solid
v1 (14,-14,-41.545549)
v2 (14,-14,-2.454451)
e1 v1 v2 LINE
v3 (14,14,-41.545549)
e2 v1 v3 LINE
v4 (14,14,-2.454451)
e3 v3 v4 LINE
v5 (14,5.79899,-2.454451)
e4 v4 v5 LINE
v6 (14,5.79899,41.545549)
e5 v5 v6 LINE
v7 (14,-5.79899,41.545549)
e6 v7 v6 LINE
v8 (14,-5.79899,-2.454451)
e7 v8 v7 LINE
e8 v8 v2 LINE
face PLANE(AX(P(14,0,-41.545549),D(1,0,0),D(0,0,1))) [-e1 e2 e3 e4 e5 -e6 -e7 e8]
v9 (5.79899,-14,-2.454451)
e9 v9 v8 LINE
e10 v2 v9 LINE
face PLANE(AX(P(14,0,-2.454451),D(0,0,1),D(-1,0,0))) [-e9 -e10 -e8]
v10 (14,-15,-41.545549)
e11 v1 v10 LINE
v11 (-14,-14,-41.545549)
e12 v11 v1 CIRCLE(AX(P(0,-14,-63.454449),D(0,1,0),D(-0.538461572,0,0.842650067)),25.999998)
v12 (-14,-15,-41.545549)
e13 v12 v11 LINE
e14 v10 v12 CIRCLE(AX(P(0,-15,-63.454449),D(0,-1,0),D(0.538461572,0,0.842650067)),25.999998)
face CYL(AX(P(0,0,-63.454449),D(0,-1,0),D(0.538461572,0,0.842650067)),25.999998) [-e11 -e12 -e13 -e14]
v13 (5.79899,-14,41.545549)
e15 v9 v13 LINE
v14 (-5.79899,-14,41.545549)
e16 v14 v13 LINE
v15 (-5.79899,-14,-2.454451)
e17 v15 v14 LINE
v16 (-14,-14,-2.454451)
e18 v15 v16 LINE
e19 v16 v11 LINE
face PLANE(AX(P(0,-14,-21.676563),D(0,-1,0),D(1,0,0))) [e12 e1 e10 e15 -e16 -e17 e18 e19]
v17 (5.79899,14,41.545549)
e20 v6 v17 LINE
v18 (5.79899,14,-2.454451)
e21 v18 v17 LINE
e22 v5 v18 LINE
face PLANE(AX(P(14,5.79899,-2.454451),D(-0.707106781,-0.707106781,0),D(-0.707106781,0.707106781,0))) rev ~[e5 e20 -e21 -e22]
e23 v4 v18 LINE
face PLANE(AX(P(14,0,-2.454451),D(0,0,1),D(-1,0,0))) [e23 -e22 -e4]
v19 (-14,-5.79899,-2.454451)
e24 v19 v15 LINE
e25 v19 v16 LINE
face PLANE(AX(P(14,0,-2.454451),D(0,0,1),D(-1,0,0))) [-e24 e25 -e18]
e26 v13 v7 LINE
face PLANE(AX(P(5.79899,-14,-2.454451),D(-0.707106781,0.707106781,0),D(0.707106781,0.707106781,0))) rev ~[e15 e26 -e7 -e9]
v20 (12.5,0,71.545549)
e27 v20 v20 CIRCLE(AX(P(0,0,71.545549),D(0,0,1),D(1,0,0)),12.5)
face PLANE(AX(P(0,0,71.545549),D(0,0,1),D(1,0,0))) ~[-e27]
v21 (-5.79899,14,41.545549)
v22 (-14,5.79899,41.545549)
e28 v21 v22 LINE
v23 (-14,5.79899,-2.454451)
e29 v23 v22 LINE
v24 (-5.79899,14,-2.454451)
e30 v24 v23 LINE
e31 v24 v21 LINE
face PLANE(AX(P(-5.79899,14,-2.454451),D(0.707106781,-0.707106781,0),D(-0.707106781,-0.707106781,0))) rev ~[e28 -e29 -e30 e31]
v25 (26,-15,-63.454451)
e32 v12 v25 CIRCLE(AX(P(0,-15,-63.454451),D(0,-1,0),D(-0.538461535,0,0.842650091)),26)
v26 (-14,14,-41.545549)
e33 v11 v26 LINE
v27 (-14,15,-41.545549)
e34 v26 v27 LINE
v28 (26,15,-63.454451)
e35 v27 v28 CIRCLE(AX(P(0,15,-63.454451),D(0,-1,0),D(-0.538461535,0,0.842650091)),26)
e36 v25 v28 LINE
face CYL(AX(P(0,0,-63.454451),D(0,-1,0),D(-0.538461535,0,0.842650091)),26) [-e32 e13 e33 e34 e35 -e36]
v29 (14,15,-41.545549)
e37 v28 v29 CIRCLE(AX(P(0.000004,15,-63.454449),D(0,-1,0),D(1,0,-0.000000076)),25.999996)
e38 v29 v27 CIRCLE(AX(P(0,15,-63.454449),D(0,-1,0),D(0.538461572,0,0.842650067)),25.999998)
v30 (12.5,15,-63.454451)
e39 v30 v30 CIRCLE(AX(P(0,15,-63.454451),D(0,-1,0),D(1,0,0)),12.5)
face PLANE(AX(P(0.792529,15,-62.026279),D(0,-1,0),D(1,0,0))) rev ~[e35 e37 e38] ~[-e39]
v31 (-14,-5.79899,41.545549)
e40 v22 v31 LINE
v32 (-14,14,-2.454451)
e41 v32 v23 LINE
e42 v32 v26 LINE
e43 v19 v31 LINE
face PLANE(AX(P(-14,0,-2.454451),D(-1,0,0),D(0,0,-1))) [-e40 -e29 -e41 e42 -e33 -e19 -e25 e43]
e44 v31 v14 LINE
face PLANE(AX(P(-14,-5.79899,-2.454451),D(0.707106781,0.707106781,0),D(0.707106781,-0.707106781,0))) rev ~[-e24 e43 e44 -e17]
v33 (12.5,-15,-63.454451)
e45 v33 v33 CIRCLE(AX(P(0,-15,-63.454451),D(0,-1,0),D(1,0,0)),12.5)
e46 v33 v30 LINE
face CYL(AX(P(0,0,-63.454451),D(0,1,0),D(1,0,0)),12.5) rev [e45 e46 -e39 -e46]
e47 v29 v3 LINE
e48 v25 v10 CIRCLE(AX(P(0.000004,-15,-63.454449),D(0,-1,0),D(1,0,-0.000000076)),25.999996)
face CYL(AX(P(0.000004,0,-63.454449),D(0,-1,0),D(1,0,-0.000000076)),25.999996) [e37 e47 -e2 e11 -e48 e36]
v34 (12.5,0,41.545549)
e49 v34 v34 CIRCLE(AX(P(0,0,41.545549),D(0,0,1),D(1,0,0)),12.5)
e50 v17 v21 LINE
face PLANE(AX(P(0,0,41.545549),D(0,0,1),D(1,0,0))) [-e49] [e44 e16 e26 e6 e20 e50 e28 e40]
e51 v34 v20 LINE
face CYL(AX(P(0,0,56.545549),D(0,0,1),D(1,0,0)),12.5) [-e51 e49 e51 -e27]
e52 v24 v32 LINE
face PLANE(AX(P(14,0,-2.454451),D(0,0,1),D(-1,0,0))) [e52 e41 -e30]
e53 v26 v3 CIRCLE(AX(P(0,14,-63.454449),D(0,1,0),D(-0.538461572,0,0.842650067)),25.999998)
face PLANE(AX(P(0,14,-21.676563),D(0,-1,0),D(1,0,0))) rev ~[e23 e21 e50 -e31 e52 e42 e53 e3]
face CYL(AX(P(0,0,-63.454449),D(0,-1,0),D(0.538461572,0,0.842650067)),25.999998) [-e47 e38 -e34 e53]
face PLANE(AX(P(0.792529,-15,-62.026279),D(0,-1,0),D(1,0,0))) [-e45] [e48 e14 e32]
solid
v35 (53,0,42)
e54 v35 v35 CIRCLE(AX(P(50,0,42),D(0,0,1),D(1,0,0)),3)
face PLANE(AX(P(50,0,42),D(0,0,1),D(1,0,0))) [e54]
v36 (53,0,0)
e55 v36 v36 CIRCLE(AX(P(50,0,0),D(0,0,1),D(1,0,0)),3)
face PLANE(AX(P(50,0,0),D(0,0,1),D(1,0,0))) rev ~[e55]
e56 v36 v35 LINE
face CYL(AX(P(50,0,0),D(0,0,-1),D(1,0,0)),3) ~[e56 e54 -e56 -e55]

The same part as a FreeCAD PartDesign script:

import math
import FreeCAD as App
import Part
import Sketcher

V = App.Vector
Q = App.Units.Quantity


def add_polygon(sketch, points):
    """Adds a closed chain of lines whose ends are joined by coincident constraints."""
    first, n = sketch.GeometryCount, len(points)
    for a, b in zip(points, points[1:] + points[:1]):
        sketch.addGeometry(Part.LineSegment(App.Vector(*a, 0), App.Vector(*b, 0)), False)
    for i in range(n):
        sketch.addConstraint(Sketcher.Constraint("Coincident", first + i, 2, first + (i + 1) % n, 1))

doc = App.newDocument("Part")
params = doc.addObject("Spreadsheet::Sheet", "Params")
for row, (alias, value) in enumerate([
    ("sketch1_diameter", "25 mm"),
    ("sketch1_radius", "25.999998 mm"),
    ("pad1_length", "30 mm"),
    ("sketch2_radius", "25.999998 mm"),
    ("sketch2_width", "28 mm"),
    ("pad2_length", "28 mm"),
    ("pad3_length", "44 mm"),
    ("sketch4_height", "30 mm"),
    ("sketch4_width", "12.5 mm"),
    ("revolution_angle", "360 deg"),
    ("sketch5_diameter", "6 mm"),
    ("pad4_length", "42 mm"),
], start=1):
    params.set(f"A{row}", alias)
    params.set(f"B{row}", "=" + value)
    params.setAlias(f"B{row}", alias)

body = doc.addObject("PartDesign::Body", "Body")

# Sketch on XZ plane
sketch1 = doc.addObject("Sketcher::SketchObject", "Sketch")
body.addObject(sketch1)
sketch1.AttachmentSupport = (doc.XZ_Plane, [""])
sketch1.MapMode = "FlatFace"
sketch1.addGeometry([
    Part.ArcOfCircle(Part.Circle(V(0.000004, -63.454449, 0), V(0, 0, 1), 25.999996), math.radians(-0.000004), math.radians(57.421035)),
    Part.ArcOfCircle(Part.Circle(V(0, -63.454449, 0), V(0, 0, 1), 25.999998), math.radians(57.421027), math.radians(122.578973)),
    Part.ArcOfCircle(Part.Circle(V(0, -63.454451, 0), V(0, 0, 1), 26), math.radians(122.57897), math.radians(360.000001)),
    Part.Circle(V(0, -63.454451, 0), V(0, 0, 1), 12.5),
], False)
sketch1.addConstraint([
    Sketcher.Constraint("Tangent", 0, 2, 1, 1),
    Sketcher.Constraint("Tangent", 1, 2, 2, 1),
    Sketcher.Constraint("Tangent", 2, 2, 0, 1),
    Sketcher.Constraint("Coincident", 3, 3, 0, 3),
    Sketcher.Constraint("Symmetric", 0, 2, 1, 2, -2),
    Sketcher.Constraint("Horizontal", 3, 3, 2, 2),
    Sketcher.Constraint("Diameter", 3, Q("25 mm")),
    Sketcher.Constraint("Radius", 1, Q("25.999998 mm")),
    Sketcher.Constraint("DistanceX", -1, 1, 0, 2, Q("14 mm")),
    Sketcher.Constraint("DistanceY", 0, 3, -1, 1, Q("63.454449 mm")),
])
sketch1.setExpression("Constraints[6]", "Params.sketch1_diameter")
sketch1.setExpression("Constraints[7]", "Params.sketch1_radius")
pad1 = doc.addObject("PartDesign::Pad", "Pad")
body.addObject(pad1)
pad1.Profile = sketch1
pad1.setExpression("Length", "Params.pad1_length")
pad1.Midplane = True

# Sketch on XZ plane
sketch2 = doc.addObject("Sketcher::SketchObject", "Sketch001")
body.addObject(sketch2)
sketch2.AttachmentSupport = (doc.XZ_Plane, [""])
sketch2.MapMode = "FlatFace"
sketch2.addGeometry([
    Part.LineSegment(V(14, -41.545549, 0), V(14, -2.454451, 0)),
    Part.LineSegment(V(14, -2.454451, 0), V(-14, -2.454451, 0)),
    Part.LineSegment(V(-14, -2.454451, 0), V(-14, -41.545549, 0)),
    Part.ArcOfCircle(Part.Circle(V(0, -63.454449, 0), V(0, 0, 1), 25.999998), math.radians(57.421027), math.radians(122.578973)),
], False)
sketch2.addConstraint([
    Sketcher.Constraint("Coincident", 0, 2, 1, 1),
    Sketcher.Constraint("Coincident", 1, 2, 2, 1),
    Sketcher.Constraint("Coincident", 2, 2, 3, 2),
    Sketcher.Constraint("Coincident", 3, 1, 0, 1),
    Sketcher.Constraint("Vertical", 0),
    Sketcher.Constraint("Horizontal", 1),
    Sketcher.Constraint("Vertical", 2),
    Sketcher.Constraint("Symmetric", 2, 2, 3, 1, -2),
    Sketcher.Constraint("Radius", 3, Q("25.999998 mm")),
    Sketcher.Constraint("DistanceX", 1, 2, 1, 1, Q("28 mm")),
    Sketcher.Constraint("DistanceY", 3, 3, 0, 2, Q("60.999998 mm")),
    Sketcher.Constraint("DistanceY", 3, 3, -1, 1, Q("63.454449 mm")),
])
sketch2.setExpression("Constraints[8]", "Params.sketch2_radius")
sketch2.setExpression("Constraints[9]", "Params.sketch2_width")
pad2 = doc.addObject("PartDesign::Pad", "Pad001")
body.addObject(pad2)
pad2.Profile = sketch2
pad2.setExpression("Length", "Params.pad2_length")
pad2.Midplane = True

# Sketch on XY plane
sketch3 = doc.addObject("Sketcher::SketchObject", "Sketch002")
body.addObject(sketch3)
sketch3.AttachmentSupport = (doc.XY_Plane, [""])
sketch3.MapMode = "FlatFace"
sketch3.AttachmentOffset = App.Placement(V(0, 0, -2.454451), App.Rotation())
add_polygon(sketch3, [(14, 5.79899), (5.79899, 14), (-5.79899, 14), (-14, 5.79899), (-14, -5.79899), (-5.79899, -14), (5.79899, -14), (14, -5.79899)])  # lines 0-7
sketch3.addConstraint([
    Sketcher.Constraint("Horizontal", 1),
    Sketcher.Constraint("Vertical", 3),
    Sketcher.Constraint("Horizontal", 5),
    Sketcher.Constraint("Vertical", 7),
    Sketcher.Constraint("Symmetric", 0, 2, 4, 2, -1, 1),
    Sketcher.Constraint("Symmetric", 2, 2, 6, 2, -1, 1),
    Sketcher.Constraint("Perpendicular", 0, 2),
    Sketcher.Constraint("Perpendicular", 2, 4),
    Sketcher.Constraint("Perpendicular", 4, 6),
    Sketcher.Constraint("Horizontal", 3, 2, 6, 2),
    Sketcher.Constraint("Vertical", 1, 2, 4, 2),
    Sketcher.Constraint("Equal", 5, 3),
    Sketcher.Constraint("DistanceY", -1, 1, 0, 2, Q("14 mm")),
    Sketcher.Constraint("DistanceX", 1, 2, 1, 1, Q("11.59798 mm")),
])
pad3 = doc.addObject("PartDesign::Pad", "Pad002")
body.addObject(pad3)
pad3.Profile = sketch3
pad3.setExpression("Length", "Params.pad3_length")

# Sketch on XZ plane
sketch4 = doc.addObject("Sketcher::SketchObject", "Sketch003")
body.addObject(sketch4)
sketch4.AttachmentSupport = (doc.XZ_Plane, [""])
sketch4.MapMode = "FlatFace"
add_polygon(sketch4, [(0, 71.545549), (0, 41.545549), (12.5, 41.545549), (12.5, 71.545549)])  # lines 0-3
sketch4.addConstraint([
    Sketcher.Constraint("Vertical", 0),
    Sketcher.Constraint("Horizontal", 1),
    Sketcher.Constraint("Vertical", 2),
    Sketcher.Constraint("Horizontal", 3),
    Sketcher.Constraint("PointOnObject", 0, 2, -2),
    Sketcher.Constraint("DistanceY", 0, 2, 0, 1, Q("30 mm")),
    Sketcher.Constraint("DistanceX", 1, 1, 1, 2, Q("12.5 mm")),
    Sketcher.Constraint("DistanceY", -1, 1, 0, 2, Q("41.545549 mm")),
])
sketch4.setExpression("Constraints[9]", "Params.sketch4_height")
sketch4.setExpression("Constraints[10]", "Params.sketch4_width")
revolution = doc.addObject("PartDesign::Revolution", "Revolution")
body.addObject(revolution)
revolution.Profile = sketch4
revolution.ReferenceAxis = (sketch4, ["V_Axis"])
revolution.setExpression("Angle", "Params.revolution_angle")
body2 = doc.addObject("PartDesign::Body", "Body001")

# Sketch on XY plane
sketch5 = doc.addObject("Sketcher::SketchObject", "Sketch004")
body2.addObject(sketch5)
sketch5.AttachmentSupport = (doc.getObject("XY_Plane001"), [""])
sketch5.MapMode = "FlatFace"
sketch5.addGeometry(Part.Circle(V(50, 0, 0), V(0, 0, 1), 3), False)
sketch5.addConstraint([
    Sketcher.Constraint("PointOnObject", 0, 3, -1),
    Sketcher.Constraint("Diameter", 0, Q("6 mm")),
    Sketcher.Constraint("DistanceX", -1, 1, 0, 3, Q("50 mm")),
])
sketch5.setExpression("Constraints[1]", "Params.sketch5_diameter")
pad4 = doc.addObject("PartDesign::Pad", "Pad003")
body2.addObject(pad4)
pad4.Profile = sketch5
pad4.setExpression("Length", "Params.pad4_length")

doc.recompute()
